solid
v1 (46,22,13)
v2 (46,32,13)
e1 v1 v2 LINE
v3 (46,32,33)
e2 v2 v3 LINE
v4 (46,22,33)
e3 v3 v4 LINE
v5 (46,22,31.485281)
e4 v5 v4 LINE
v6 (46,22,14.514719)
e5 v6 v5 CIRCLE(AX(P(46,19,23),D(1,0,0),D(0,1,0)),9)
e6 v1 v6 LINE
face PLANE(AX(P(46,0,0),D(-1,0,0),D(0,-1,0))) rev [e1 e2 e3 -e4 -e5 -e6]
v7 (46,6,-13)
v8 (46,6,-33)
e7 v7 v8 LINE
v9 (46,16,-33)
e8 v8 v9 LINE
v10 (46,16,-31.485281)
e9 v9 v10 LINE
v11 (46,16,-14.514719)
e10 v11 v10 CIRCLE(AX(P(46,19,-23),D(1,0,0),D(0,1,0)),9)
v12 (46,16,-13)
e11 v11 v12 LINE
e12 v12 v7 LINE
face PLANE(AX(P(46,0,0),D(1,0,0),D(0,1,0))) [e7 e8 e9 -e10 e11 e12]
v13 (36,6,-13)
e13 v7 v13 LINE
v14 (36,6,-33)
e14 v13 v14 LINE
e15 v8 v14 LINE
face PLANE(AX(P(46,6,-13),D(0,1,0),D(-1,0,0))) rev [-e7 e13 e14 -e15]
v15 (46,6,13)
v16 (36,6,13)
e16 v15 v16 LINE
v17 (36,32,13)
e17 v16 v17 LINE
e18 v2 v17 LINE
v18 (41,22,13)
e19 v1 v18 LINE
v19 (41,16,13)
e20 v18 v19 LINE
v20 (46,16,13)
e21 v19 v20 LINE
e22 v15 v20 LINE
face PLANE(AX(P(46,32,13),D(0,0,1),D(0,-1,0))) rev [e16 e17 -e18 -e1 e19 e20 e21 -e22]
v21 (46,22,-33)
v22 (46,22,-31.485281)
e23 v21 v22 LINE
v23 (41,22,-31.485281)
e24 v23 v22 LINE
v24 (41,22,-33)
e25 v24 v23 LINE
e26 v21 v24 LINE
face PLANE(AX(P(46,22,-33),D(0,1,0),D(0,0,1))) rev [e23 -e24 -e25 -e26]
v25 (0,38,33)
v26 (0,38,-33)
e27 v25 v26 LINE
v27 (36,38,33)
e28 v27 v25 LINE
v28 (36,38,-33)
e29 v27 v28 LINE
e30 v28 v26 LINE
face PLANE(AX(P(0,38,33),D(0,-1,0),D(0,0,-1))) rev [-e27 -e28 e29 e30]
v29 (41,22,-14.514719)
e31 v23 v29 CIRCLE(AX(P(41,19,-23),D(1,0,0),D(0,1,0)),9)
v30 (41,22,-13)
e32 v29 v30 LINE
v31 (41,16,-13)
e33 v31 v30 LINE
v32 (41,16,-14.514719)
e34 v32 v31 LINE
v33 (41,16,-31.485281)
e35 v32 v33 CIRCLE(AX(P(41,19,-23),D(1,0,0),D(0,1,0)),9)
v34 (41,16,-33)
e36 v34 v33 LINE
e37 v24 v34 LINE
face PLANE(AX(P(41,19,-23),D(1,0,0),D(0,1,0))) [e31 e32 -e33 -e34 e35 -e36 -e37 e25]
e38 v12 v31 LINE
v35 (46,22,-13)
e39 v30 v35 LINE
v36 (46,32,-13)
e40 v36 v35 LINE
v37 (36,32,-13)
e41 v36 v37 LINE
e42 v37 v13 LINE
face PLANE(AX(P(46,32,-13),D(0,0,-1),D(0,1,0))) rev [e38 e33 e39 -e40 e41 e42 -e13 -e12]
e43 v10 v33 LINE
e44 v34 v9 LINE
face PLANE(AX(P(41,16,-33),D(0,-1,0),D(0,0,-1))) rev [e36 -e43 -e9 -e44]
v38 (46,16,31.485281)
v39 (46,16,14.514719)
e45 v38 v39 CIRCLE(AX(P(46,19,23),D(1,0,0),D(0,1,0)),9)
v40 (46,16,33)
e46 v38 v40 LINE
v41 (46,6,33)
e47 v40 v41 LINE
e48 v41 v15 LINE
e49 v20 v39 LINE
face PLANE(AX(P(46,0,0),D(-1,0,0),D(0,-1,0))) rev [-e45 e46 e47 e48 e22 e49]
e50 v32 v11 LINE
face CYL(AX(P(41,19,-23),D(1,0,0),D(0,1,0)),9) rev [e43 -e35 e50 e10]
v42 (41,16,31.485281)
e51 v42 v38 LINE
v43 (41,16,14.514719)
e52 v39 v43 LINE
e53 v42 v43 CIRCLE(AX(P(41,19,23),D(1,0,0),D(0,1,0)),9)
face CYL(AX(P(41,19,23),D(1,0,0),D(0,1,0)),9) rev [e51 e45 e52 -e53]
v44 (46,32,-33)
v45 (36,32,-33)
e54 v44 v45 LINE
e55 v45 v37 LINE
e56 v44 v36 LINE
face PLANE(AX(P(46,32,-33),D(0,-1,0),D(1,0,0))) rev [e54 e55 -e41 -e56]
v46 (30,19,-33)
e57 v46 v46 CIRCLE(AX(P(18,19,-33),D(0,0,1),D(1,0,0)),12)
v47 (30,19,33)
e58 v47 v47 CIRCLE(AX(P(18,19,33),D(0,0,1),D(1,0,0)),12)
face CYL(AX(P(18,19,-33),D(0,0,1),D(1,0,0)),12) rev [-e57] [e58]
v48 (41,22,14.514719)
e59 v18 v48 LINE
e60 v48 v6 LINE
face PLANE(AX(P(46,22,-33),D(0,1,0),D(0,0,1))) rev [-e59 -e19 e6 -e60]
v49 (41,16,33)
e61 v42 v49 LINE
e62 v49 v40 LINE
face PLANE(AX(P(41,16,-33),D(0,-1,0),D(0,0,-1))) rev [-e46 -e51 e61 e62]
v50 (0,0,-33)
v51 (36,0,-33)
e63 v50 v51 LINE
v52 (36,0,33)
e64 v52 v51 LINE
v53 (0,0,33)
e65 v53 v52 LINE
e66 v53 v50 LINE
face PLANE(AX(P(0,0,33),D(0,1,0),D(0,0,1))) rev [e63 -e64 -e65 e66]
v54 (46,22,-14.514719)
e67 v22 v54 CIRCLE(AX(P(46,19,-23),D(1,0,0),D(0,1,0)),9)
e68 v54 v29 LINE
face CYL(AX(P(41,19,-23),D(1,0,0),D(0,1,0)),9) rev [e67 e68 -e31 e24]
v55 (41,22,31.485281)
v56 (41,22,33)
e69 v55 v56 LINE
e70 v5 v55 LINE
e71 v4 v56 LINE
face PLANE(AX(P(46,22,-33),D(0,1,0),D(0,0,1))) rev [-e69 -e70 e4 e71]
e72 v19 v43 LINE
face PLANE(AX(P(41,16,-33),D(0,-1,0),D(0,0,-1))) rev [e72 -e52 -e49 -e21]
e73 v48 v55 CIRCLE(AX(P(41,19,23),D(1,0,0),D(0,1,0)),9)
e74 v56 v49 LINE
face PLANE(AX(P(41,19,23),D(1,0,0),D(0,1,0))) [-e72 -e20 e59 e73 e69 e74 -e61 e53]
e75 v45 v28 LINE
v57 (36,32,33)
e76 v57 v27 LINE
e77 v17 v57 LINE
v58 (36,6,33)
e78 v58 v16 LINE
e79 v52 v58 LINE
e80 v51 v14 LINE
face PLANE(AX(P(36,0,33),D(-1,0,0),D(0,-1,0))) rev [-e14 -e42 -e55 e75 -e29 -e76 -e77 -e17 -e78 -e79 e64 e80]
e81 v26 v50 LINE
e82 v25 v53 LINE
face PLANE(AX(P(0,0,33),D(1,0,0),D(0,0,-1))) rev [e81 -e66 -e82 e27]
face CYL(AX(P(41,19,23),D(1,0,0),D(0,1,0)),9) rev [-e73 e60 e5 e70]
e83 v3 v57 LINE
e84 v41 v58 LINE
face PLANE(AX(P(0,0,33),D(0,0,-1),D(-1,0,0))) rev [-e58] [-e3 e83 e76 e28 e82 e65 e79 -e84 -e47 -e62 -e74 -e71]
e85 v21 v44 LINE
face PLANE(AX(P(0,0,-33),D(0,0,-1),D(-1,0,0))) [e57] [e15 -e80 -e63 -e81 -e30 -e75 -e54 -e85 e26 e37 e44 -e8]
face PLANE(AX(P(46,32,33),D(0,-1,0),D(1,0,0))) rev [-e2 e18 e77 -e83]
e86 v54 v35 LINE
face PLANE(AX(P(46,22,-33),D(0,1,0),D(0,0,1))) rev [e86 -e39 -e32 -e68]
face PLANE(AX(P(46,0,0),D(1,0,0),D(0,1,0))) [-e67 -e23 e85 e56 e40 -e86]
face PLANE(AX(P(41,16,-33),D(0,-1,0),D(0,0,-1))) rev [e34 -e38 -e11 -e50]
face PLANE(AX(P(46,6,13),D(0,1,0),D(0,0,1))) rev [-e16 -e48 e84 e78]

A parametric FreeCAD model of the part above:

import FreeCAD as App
import Part
import Sketcher

V = App.Vector

doc = App.newDocument("Part")
body = doc.addObject("PartDesign::Body", "Body")

# Sketch on XY plane
sketch1 = body.newObject("Sketcher::SketchObject", "Sketch")
sketch1.AttachmentSupport = (doc.getObject("XY_Plane"), [""])
sketch1.MapMode = "FlatFace"
sketch1.addGeometry(Part.LineSegment(V(0, 38, 0), V(0, 0, 0)), False)
sketch1.addGeometry(Part.LineSegment(V(0, 0, 0), V(36, 0, 0)), False)
sketch1.addGeometry(Part.LineSegment(V(36, 0, 0), V(36, 38, 0)), False)
sketch1.addGeometry(Part.LineSegment(V(36, 38, 0), V(0, 38, 0)), False)
sketch1.addConstraint(Sketcher.Constraint("Coincident", 0, 2, 1, 1))
sketch1.addConstraint(Sketcher.Constraint("Coincident", 1, 2, 2, 1))
sketch1.addConstraint(Sketcher.Constraint("Coincident", 2, 2, 3, 1))
sketch1.addConstraint(Sketcher.Constraint("Coincident", 3, 2, 0, 1))
sketch1.addConstraint(Sketcher.Constraint("Vertical", 0))
sketch1.addConstraint(Sketcher.Constraint("Horizontal", 1))
sketch1.addConstraint(Sketcher.Constraint("Vertical", 2))
sketch1.addConstraint(Sketcher.Constraint("Horizontal", 3))
sketch1.addConstraint(Sketcher.Constraint("Coincident", 0, 2, -1, 1))
sketch1.addConstraint(Sketcher.Constraint("DistanceX", 1, 1, 1, 2, 36.0))
sketch1.addConstraint(Sketcher.Constraint("DistanceY", 0, 2, 0, 1, 38.0))
pad1 = body.newObject("PartDesign::Pad", "Pad")
pad1.Profile = sketch1
pad1.Length = 66
pad1.Midplane = True

# Sketch on XY plane
sketch2 = body.newObject("Sketcher::SketchObject", "Sketch001")
sketch2.AttachmentSupport = (doc.getObject("XY_Plane"), [""])
sketch2.MapMode = "FlatFace"
sketch2.AttachmentOffset = App.Placement(V(0, 0, 33), App.Rotation())
sketch2.addGeometry(Part.Circle(V(18, 19, 0), V(0, 0, 1), 12), False)
sketch2.addConstraint(Sketcher.Constraint("Diameter", 0, 24.0))
sketch2.addConstraint(Sketcher.Constraint("DistanceX", -1, 1, 0, 3, 18.0))
sketch2.addConstraint(Sketcher.Constraint("DistanceY", -1, 1, 0, 3, 19.0))
pocket1 = body.newObject("PartDesign::Pocket", "Pocket")
pocket1.Profile = sketch2
pocket1.Type = "ThroughAll"

# Sketch on YZ plane
sketch3 = body.newObject("Sketcher::SketchObject", "Sketch002")
sketch3.AttachmentSupport = (doc.getObject("YZ_Plane"), [""])
sketch3.MapMode = "FlatFace"
sketch3.AttachmentOffset = App.Placement(V(0, 0, 36), App.Rotation())
sketch3.addGeometry(Part.LineSegment(V(32, 33, 0), V(6, 33, 0)), False)
sketch3.addGeometry(Part.LineSegment(V(6, 33, 0), V(6, 13, 0)), False)
sketch3.addGeometry(Part.LineSegment(V(6, 13, 0), V(32, 13, 0)), False)
sketch3.addGeometry(Part.LineSegment(V(32, 13, 0), V(32, 33, 0)), False)
sketch3.addGeometry(Part.LineSegment(V(32, -13, 0), V(6, -13, 0)), False)
sketch3.addGeometry(Part.LineSegment(V(6, -13, 0), V(6, -33, 0)), False)
sketch3.addGeometry(Part.LineSegment(V(6, -33, 0), V(32, -33, 0)), False)
sketch3.addGeometry(Part.LineSegment(V(32, -33, 0), V(32, -13, 0)), False)
sketch3.addConstraint(Sketcher.Constraint("Coincident", 0, 2, 1, 1))
sketch3.addConstraint(Sketcher.Constraint("Coincident", 1, 2, 2, 1))
sketch3.addConstraint(Sketcher.Constraint("Coincident", 2, 2, 3, 1))
sketch3.addConstraint(Sketcher.Constraint("Coincident", 3, 2, 0, 1))
sketch3.addConstraint(Sketcher.Constraint("Coincident", 4, 2, 5, 1))
sketch3.addConstraint(Sketcher.Constraint("Coincident", 5, 2, 6, 1))
sketch3.addConstraint(Sketcher.Constraint("Coincident", 6, 2, 7, 1))
sketch3.addConstraint(Sketcher.Constraint("Coincident", 7, 2, 4, 1))
sketch3.addConstraint(Sketcher.Constraint("Horizontal", 0))
sketch3.addConstraint(Sketcher.Constraint("Vertical", 1))
sketch3.addConstraint(Sketcher.Constraint("Horizontal", 2))
sketch3.addConstraint(Sketcher.Constraint("Vertical", 3))
sketch3.addConstraint(Sketcher.Constraint("Horizontal", 4))
sketch3.addConstraint(Sketcher.Constraint("Vertical", 5))
sketch3.addConstraint(Sketcher.Constraint("Horizontal", 6))
sketch3.addConstraint(Sketcher.Constraint("Vertical", 7))
sketch3.addConstraint(Sketcher.Constraint("Symmetric", 1, 2, 4, 2, -1))
sketch3.addConstraint(Sketcher.Constraint("Symmetric", 3, 2, 6, 2, -1))
sketch3.addConstraint(Sketcher.Constraint("DistanceX", 0, 2, 0, 1, 26.0))
sketch3.addConstraint(Sketcher.Constraint("DistanceY", 1, 2, 1, 1, 20.0))
sketch3.addConstraint(Sketcher.Constraint("DistanceX", -1, 1, 0, 2, 6.0))
sketch3.addConstraint(Sketcher.Constraint("DistanceY", -1, 1, 0, 2, 33.0))
pad2 = body.newObject("PartDesign::Pad", "Pad001")
pad2.Profile = sketch3
pad2.Length = 10

# Sketch on YZ plane
sketch4 = body.newObject("Sketcher::SketchObject", "Sketch003")
sketch4.AttachmentSupport = (doc.getObject("YZ_Plane"), [""])
sketch4.MapMode = "FlatFace"
sketch4.AttachmentOffset = App.Placement(V(0, 0, 46), App.Rotation())
sketch4.addGeometry(Part.Circle(V(19, 23, 0), V(0, 0, 1), 9), False)
sketch4.addGeometry(Part.Circle(V(19, -23, 0), V(0, 0, 1), 9), False)
sketch4.addConstraint(Sketcher.Constraint("Equal", 0, 1))
sketch4.addConstraint(Sketcher.Constraint("Symmetric", 0, 3, 1, 3, -1))
sketch4.addConstraint(Sketcher.Constraint("Diameter", 0, 18.0))
sketch4.addConstraint(Sketcher.Constraint("DistanceX", -1, 1, 0, 3, 19.0))
sketch4.addConstraint(Sketcher.Constraint("DistanceY", -1, 1, 0, 3, 23.0))
pocket2 = body.newObject("PartDesign::Pocket", "Pocket001")
pocket2.Profile = sketch4
pocket2.Length = 5

# Sketch on XY plane
sketch5 = body.newObject("Sketcher::SketchObject", "Sketch004")
sketch5.AttachmentSupport = (doc.getObject("XY_Plane"), [""])
sketch5.MapMode = "FlatFace"
sketch5.AttachmentOffset = App.Placement(V(0, 0, 33), App.Rotation())
sketch5.addGeometry(Part.LineSegment(V(46, 22, 0), V(41, 22, 0)), False)
sketch5.addGeometry(Part.LineSegment(V(41, 22, 0), V(41, 16, 0)), False)
sketch5.addGeometry(Part.LineSegment(V(41, 16, 0), V(46, 16, 0)), False)
sketch5.addGeometry(Part.LineSegment(V(46, 16, 0), V(46, 22, 0)), False)
sketch5.addConstraint(Sketcher.Constraint("Coincident", 0, 2, 1, 1))
sketch5.addConstraint(Sketcher.Constraint("Coincident", 1, 2, 2, 1))
sketch5.addConstraint(Sketcher.Constraint("Coincident", 2, 2, 3, 1))
sketch5.addConstraint(Sketcher.Constraint("Coincident", 3, 2, 0, 1))
sketch5.addConstraint(Sketcher.Constraint("Horizontal", 0))
sketch5.addConstraint(Sketcher.Constraint("Vertical", 1))
sketch5.addConstraint(Sketcher.Constraint("Horizontal", 2))
sketch5.addConstraint(Sketcher.Constraint("Vertical", 3))
sketch5.addConstraint(Sketcher.Constraint("DistanceX", 0, 2, 0, 1, 5.0))
sketch5.addConstraint(Sketcher.Constraint("DistanceY", 1, 2, 1, 1, 6.0))
sketch5.addConstraint(Sketcher.Constraint("DistanceX", -1, 1, 0, 2, 41.0))
sketch5.addConstraint(Sketcher.Constraint("DistanceY", -1, 1, 0, 2, 22.0))
pocket3 = body.newObject("PartDesign::Pocket", "Pocket002")
pocket3.Profile = sketch5
pocket3.Type = "ThroughAll"

doc.recompute()
